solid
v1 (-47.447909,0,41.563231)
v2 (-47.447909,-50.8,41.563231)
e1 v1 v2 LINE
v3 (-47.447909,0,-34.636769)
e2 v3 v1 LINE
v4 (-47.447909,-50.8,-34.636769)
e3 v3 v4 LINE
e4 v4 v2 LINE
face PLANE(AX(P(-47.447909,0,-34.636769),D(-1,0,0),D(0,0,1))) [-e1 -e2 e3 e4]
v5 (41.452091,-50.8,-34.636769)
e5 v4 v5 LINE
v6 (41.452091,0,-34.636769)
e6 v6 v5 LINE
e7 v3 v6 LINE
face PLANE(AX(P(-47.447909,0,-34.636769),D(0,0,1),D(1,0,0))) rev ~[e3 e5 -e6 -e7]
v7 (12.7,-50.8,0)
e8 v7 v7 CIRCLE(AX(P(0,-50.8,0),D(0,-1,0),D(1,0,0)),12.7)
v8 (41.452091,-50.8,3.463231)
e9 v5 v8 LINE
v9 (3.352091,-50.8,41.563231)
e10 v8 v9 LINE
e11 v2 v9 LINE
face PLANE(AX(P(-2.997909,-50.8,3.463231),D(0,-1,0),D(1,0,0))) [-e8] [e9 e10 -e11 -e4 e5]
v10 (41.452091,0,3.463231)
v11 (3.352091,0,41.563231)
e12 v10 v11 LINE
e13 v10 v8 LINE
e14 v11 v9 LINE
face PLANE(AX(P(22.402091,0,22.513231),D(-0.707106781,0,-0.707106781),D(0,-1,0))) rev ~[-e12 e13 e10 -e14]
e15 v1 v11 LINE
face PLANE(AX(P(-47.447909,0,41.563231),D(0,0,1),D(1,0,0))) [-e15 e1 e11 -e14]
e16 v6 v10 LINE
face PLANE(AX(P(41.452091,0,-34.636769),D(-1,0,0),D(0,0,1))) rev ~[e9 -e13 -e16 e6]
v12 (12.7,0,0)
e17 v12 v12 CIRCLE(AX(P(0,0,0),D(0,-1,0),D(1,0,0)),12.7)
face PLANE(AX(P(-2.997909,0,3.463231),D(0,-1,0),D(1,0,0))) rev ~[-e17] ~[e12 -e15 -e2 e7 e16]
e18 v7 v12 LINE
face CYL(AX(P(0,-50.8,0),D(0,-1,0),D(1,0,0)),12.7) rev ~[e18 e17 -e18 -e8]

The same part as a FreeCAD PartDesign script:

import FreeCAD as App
import Part
import Sketcher
from FreeCAD import Vector
Q = App.Units.Quantity


def edges_at(feature, points):
    """Names of the edges that pass closest to the given points."""
    edges = feature.Shape.Edges
    near = lambda p: min(range(len(edges)), key=lambda i: edges[i].distToShape(Part.Vertex(*p))[0])
    return sorted({f"Edge{near(p) + 1}" for p in points})


def add_polygon(sketch, points):
    """Adds a closed chain of lines whose ends are joined by coincident constraints."""
    first, n = sketch.GeometryCount, len(points)
    for a, b in zip(points, points[1:] + points[:1]):
        sketch.addGeometry(Part.LineSegment(App.Vector(*a, 0), App.Vector(*b, 0)), False)
    for i in range(n):
        sketch.addConstraint(Sketcher.Constraint("Coincident", first + i, 2, first + (i + 1) % n, 1))

doc = App.newDocument("Part")
body = doc.addObject("PartDesign::Body", "Body")

# Sketch on XZ plane
sketch1 = doc.addObject("Sketcher::SketchObject", "Sketch")
body.addObject(sketch1)
sketch1.AttachmentSupport = (doc.XZ_Plane, [""])
sketch1.MapMode = "FlatFace"
add_polygon(sketch1, [(-47.447909, 41.563231), (-47.447909, -34.636769), (41.452091, -34.636769), (41.452091, 41.563231)])  # lines 0-3
sketch1.addConstraint([
    Sketcher.Constraint("Vertical", 0),
    Sketcher.Constraint("Horizontal", 1),
    Sketcher.Constraint("Vertical", 2),
    Sketcher.Constraint("Horizontal", 3),
    Sketcher.Constraint("DistanceY", 0, 2, 0, 1, Q("3 in")),
    Sketcher.Constraint("DistanceX", 1, 1, 1, 2, Q("3.5 in")),
    Sketcher.Constraint("DistanceX", 0, 2, -1, 1, 47.447909),
    Sketcher.Constraint("DistanceY", 0, 2, -1, 1, 34.636769),
])
pad1 = doc.addObject("PartDesign::Pad", "Pad")
body.addObject(pad1)
pad1.Profile = sketch1
pad1.Length = Q("2 in")
doc.recompute()

chamfer = doc.addObject("PartDesign::Chamfer", "Chamfer")
body.addObject(chamfer)
chamfer.Base = (pad1, edges_at(pad1, [(41.452, -25.4, 41.563)]))
chamfer.Size = Q("1.5 in")

# Sketch on XZ plane
sketch2 = doc.addObject("Sketcher::SketchObject", "Sketch001")
body.addObject(sketch2)
sketch2.AttachmentSupport = (doc.XZ_Plane, [""])
sketch2.MapMode = "FlatFace"
sketch2.AttachmentOffset = App.Placement(Vector(0, 0, 2 * 25.4), App.Rotation())
sketch2.addGeometry(Part.Circle(Vector(0, 0, 0), Vector(0, 0, 1), 12.7), False)
sketch2.addConstraint([
    Sketcher.Constraint("Coincident", 0, 3, -1, 1),
    Sketcher.Constraint("Diameter", 0, Q("1 in")),
])
pocket1 = doc.addObject("PartDesign::Pocket", "Pocket")
body.addObject(pocket1)
pocket1.Profile = sketch2
pocket1.Length = Q("2 in")

doc.recompute()
